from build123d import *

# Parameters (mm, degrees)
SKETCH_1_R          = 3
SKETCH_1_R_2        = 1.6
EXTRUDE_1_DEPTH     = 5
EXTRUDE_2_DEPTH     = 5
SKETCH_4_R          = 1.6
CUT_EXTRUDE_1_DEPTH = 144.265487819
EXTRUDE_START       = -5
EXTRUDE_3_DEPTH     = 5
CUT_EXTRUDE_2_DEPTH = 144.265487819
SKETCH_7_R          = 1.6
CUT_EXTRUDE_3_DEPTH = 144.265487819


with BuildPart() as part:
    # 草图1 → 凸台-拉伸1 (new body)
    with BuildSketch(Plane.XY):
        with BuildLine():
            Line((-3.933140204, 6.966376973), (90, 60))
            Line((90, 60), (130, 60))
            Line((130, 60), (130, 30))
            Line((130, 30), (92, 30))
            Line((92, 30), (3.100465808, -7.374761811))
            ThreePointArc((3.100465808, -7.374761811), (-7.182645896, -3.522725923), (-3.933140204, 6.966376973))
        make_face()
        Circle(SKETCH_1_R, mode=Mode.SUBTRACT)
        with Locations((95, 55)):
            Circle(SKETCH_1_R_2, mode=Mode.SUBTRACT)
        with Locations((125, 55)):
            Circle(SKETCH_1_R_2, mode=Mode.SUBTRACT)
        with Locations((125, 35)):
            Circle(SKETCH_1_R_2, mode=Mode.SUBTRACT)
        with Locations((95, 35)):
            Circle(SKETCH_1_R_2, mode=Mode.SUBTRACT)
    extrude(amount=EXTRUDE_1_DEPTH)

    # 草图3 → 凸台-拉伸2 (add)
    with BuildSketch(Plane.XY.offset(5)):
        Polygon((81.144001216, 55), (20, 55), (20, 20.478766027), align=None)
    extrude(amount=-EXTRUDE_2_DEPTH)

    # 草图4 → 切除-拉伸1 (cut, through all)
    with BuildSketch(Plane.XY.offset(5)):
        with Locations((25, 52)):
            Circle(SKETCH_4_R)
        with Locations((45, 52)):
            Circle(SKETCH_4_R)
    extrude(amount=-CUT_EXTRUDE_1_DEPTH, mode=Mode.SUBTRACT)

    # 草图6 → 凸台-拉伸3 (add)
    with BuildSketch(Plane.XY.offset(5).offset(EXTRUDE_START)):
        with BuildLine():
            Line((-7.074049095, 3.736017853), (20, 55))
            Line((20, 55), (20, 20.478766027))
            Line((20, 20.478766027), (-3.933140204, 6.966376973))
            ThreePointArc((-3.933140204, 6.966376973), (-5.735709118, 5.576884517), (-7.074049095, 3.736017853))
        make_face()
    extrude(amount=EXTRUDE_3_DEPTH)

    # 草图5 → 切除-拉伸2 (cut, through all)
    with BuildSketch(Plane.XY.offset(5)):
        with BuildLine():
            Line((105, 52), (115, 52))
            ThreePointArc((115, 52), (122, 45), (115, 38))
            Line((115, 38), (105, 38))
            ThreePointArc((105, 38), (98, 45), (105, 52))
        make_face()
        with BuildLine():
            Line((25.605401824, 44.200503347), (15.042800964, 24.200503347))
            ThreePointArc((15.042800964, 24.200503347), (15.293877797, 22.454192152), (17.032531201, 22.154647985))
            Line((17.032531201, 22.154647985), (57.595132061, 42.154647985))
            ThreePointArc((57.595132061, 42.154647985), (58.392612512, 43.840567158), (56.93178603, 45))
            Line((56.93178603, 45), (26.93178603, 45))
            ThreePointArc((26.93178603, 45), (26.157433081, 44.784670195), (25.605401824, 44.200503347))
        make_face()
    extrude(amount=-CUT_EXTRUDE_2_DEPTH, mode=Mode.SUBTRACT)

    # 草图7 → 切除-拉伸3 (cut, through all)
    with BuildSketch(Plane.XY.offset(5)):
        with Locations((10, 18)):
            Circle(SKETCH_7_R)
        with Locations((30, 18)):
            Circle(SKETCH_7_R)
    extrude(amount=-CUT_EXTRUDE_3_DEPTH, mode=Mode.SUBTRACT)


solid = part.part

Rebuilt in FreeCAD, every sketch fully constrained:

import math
import FreeCAD as App
import Part
import Sketcher


def add_polygon(sketch, points):
    """Adds a closed chain of lines whose ends are joined by coincident constraints."""
    first, n = sketch.GeometryCount, len(points)
    for a, b in zip(points, points[1:] + points[:1]):
        sketch.addGeometry(Part.LineSegment(App.Vector(*a, 0), App.Vector(*b, 0)), False)
    for i in range(n):
        sketch.addConstraint(Sketcher.Constraint("Coincident", first + i, 2, first + (i + 1) % n, 1))

doc = App.newDocument("Part")
body = doc.addObject("PartDesign::Body", "Body")

# Sketch on XY plane
sketch1 = body.newObject("Sketcher::SketchObject", "Sketch")
sketch1.AttachmentSupport = (doc.getObject("XY_Plane"), [""])
sketch1.MapMode = "FlatFace"
sketch1.addGeometry([
    Part.LineSegment(App.Vector(90, 60, 0), App.Vector(-3.93314, 6.966377, 0)),  # 0
    Part.ArcOfCircle(Part.Circle(App.Vector(0, 0, 0), App.Vector(0, 0, 1), 8), math.radians(119.448597), math.radians(292.80265)),  # 1
    Part.LineSegment(App.Vector(3.100466, -7.374762, 0), App.Vector(92, 30, 0)),  # 2
    Part.LineSegment(App.Vector(92, 30, 0), App.Vector(130, 30, 0)),  # 3
    Part.LineSegment(App.Vector(130, 30, 0), App.Vector(130, 60, 0)),  # 4
    Part.LineSegment(App.Vector(130, 60, 0), App.Vector(90, 60, 0)),  # 5
    Part.Circle(App.Vector(0, 0, 0), App.Vector(0, 0, 1), 3),  # 6
    Part.Circle(App.Vector(125, 35, 0), App.Vector(0, 0, 1), 1.6),  # 7
    Part.Circle(App.Vector(95, 35, 0), App.Vector(0, 0, 1), 1.6),  # 8
    Part.Circle(App.Vector(125, 55, 0), App.Vector(0, 0, 1), 1.6),  # 9
    Part.Circle(App.Vector(95, 55, 0), App.Vector(0, 0, 1), 1.6),  # 10
], False)
sketch1.addConstraint([
    Sketcher.Constraint("Tangent", 0, 2, 1, 1),
    Sketcher.Constraint("Tangent", 1, 2, 2, 1),
    Sketcher.Constraint("Coincident", 2, 2, 3, 1),
    Sketcher.Constraint("Coincident", 3, 2, 4, 1),
    Sketcher.Constraint("Coincident", 4, 2, 5, 1),
    Sketcher.Constraint("Coincident", 5, 2, 0, 1),
    Sketcher.Constraint("Horizontal", 3),
    Sketcher.Constraint("Vertical", 4),
    Sketcher.Constraint("Horizontal", 5),
    Sketcher.Constraint("Coincident", 1, 3, -1, 1),
    Sketcher.Constraint("Coincident", 6, 3, -1, 1),
    Sketcher.Constraint("Equal", 7, 8),
    Sketcher.Constraint("Equal", 8, 9),
    Sketcher.Constraint("Equal", 9, 10),
    Sketcher.Constraint("Horizontal", 7, 3, 8, 3),
    Sketcher.Constraint("Horizontal", 9, 3, 10, 3),
    Sketcher.Constraint("Vertical", 7, 3, 9, 3),
    Sketcher.Constraint("Vertical", 8, 3, 10, 3),
    Sketcher.Constraint("Diameter", 6, 6.0),
    Sketcher.Constraint("Radius", 1, 8.0),
    Sketcher.Constraint("Diameter", 7, 3.2),
    Sketcher.Constraint("DistanceX", 3, 1, 3, 2, 38.0),
    Sketcher.Constraint("DistanceX", 5, 2, 5, 1, 40.0),
    Sketcher.Constraint("DistanceY", 4, 1, 4, 2, 30.0),
    Sketcher.Constraint("DistanceX", -1, 1, 7, 3, 125.0),
    Sketcher.Constraint("DistanceY", -1, 1, 7, 3, 35.0),
    Sketcher.Constraint("DistanceX", -1, 1, 8, 3, 95.0),
    Sketcher.Constraint("DistanceY", -1, 1, 9, 3, 55.0),
    Sketcher.Constraint("DistanceX", -1, 1, 2, 2, 92.0),
    Sketcher.Constraint("DistanceY", -1, 1, 2, 2, 30.0),
])
pad1 = body.newObject("PartDesign::Pad", "Pad")
pad1.Profile = sketch1
pad1.Length = 5

# Sketch on XY plane
sketch2 = body.newObject("Sketcher::SketchObject", "Sketch001")
sketch2.AttachmentSupport = (doc.getObject("XY_Plane"), [""])
sketch2.MapMode = "FlatFace"
sketch2.AttachmentOffset = App.Placement(App.Vector(0, 0, 5), App.Rotation())
add_polygon(sketch2, [(81.144001, 55), (20, 55), (20, 20.478766)])  # lines 0-2
sketch2.addConstraint([
    Sketcher.Constraint("Horizontal", 0),
    Sketcher.Constraint("Vertical", 1),
    Sketcher.Constraint("DistanceX", -1, 1, 0, 2, 20.0),
    Sketcher.Constraint("DistanceY", -1, 1, 0, 2, 55.0),
    Sketcher.Constraint("DistanceX", 0, 2, 0, 1, 61.144001),
    Sketcher.Constraint("DistanceY", 1, 2, 1, 1, 34.521234),
])
pad2 = body.newObject("PartDesign::Pad", "Pad001")
pad2.Profile = sketch2
pad2.Length = 5
pad2.Reversed = True

# Sketch on XY plane
sketch3 = body.newObject("Sketcher::SketchObject", "Sketch002")
sketch3.AttachmentSupport = (doc.getObject("XY_Plane"), [""])
sketch3.MapMode = "FlatFace"
sketch3.AttachmentOffset = App.Placement(App.Vector(0, 0, 5), App.Rotation())
sketch3.addGeometry([
    Part.Circle(App.Vector(25, 52, 0), App.Vector(0, 0, 1), 1.6),
    Part.Circle(App.Vector(45, 52, 0), App.Vector(0, 0, 1), 1.6),
], False)
sketch3.addConstraint([
    Sketcher.Constraint("Equal", 0, 1),
    Sketcher.Constraint("Horizontal", 0, 3, 1, 3),
    Sketcher.Constraint("Diameter", 0, 3.2),
    Sketcher.Constraint("DistanceX", -1, 1, 0, 3, 25.0),
    Sketcher.Constraint("DistanceY", -1, 1, 0, 3, 52.0),
    Sketcher.Constraint("DistanceX", -1, 1, 1, 3, 45.0),
])
pocket1 = body.newObject("PartDesign::Pocket", "Pocket")
pocket1.Profile = sketch3
pocket1.Type = "ThroughAll"

# Sketch on XY plane
sketch4 = body.newObject("Sketcher::SketchObject", "Sketch003")
sketch4.AttachmentSupport = (doc.getObject("XY_Plane"), [""])
sketch4.MapMode = "FlatFace"
sketch4.addGeometry([
    Part.LineSegment(App.Vector(20, 55, 0), App.Vector(-7.074049, 3.736018, 0)),
    Part.ArcOfCircle(Part.Circle(App.Vector(0, 0, 0), App.Vector(0, 0, 1), 8), math.radians(119.448597), math.radians(152.16012)),
    Part.LineSegment(App.Vector(-3.93314, 6.966377, 0), App.Vector(20, 20.478766, 0)),
    Part.LineSegment(App.Vector(20, 20.478766, 0), App.Vector(20, 55, 0)),
], False)
sketch4.addConstraint([
    Sketcher.Constraint("Tangent", 0, 2, 1, 2),
    Sketcher.Constraint("Tangent", 1, 1, 2, 1),
    Sketcher.Constraint("Coincident", 2, 2, 3, 1),
    Sketcher.Constraint("Coincident", 3, 2, 0, 1),
    Sketcher.Constraint("Vertical", 3),
    Sketcher.Constraint("Coincident", 1, 3, -1, 1),
    Sketcher.Constraint("Radius", 1, 8.0),
    Sketcher.Constraint("DistanceX", -1, 1, 2, 2, 20.0),
    Sketcher.Constraint("DistanceY", -1, 1, 3, 2, 55.0),
    Sketcher.Constraint("DistanceY", 3, 1, 3, 2, 34.521234),
])
pad3 = body.newObject("PartDesign::Pad", "Pad002")
pad3.Profile = sketch4
pad3.Length = 5

# Sketch on XY plane
sketch5 = body.newObject("Sketcher::SketchObject", "Sketch004")
sketch5.AttachmentSupport = (doc.getObject("XY_Plane"), [""])
sketch5.MapMode = "FlatFace"
sketch5.AttachmentOffset = App.Placement(App.Vector(0, 0, 5), App.Rotation())
sketch5.addGeometry([
    Part.LineSegment(App.Vector(115, 52, 0), App.Vector(105, 52, 0)),  # 0
    Part.ArcOfCircle(Part.Circle(App.Vector(105, 45, 0), App.Vector(0, 0, 1), 7), math.radians(90), math.radians(270)),  # 1
    Part.LineSegment(App.Vector(105, 38, 0), App.Vector(115, 38, 0)),  # 2
    Part.ArcOfCircle(Part.Circle(App.Vector(115, 45, 0), App.Vector(0, 0, 1), 7), math.radians(-90), math.radians(90)),  # 3
    Part.LineSegment(App.Vector(25.605402, 44.200503, 0), App.Vector(15.042801, 24.200503, 0)),  # 4
    Part.ArcOfCircle(Part.Circle(App.Vector(16.369185, 23.5, 0), App.Vector(0, 0, 1), 1.5), math.radians(152.16012), math.radians(296.246295)),  # 5
    Part.LineSegment(App.Vector(17.032531, 22.154648, 0), App.Vector(57.595132, 42.154648, 0)),  # 6
    Part.ArcOfCircle(Part.Circle(App.Vector(56.931786, 43.5, 0), App.Vector(0, 0, 1), 1.5), math.radians(-63.753705), math.radians(90)),  # 7
    Part.LineSegment(App.Vector(56.931786, 45, 0), App.Vector(26.931786, 45, 0)),  # 8
    Part.ArcOfCircle(Part.Circle(App.Vector(26.931786, 43.5, 0), App.Vector(0, 0, 1), 1.5), math.radians(90), math.radians(152.16012)),  # 9
], False)
sketch5.addConstraint([
    Sketcher.Constraint("Tangent", 0, 2, 1, 1),
    Sketcher.Constraint("Tangent", 1, 2, 2, 1),
    Sketcher.Constraint("Tangent", 2, 2, 3, 1),
    Sketcher.Constraint("Tangent", 3, 2, 0, 1),
    Sketcher.Constraint("Tangent", 4, 2, 5, 1),
    Sketcher.Constraint("Tangent", 5, 2, 6, 1),
    Sketcher.Constraint("Tangent", 6, 2, 7, 1),
    Sketcher.Constraint("Tangent", 7, 2, 8, 1),
    Sketcher.Constraint("Tangent", 8, 2, 9, 1),
    Sketcher.Constraint("Tangent", 9, 2, 4, 1),
    Sketcher.Constraint("Horizontal", 0),
    Sketcher.Constraint("Horizontal", 2),
    Sketcher.Constraint("Horizontal", 8),
    Sketcher.Constraint("Equal", 5, 7),
    Sketcher.Constraint("Equal", 7, 9),
    Sketcher.Constraint("Horizontal", 3, 3, 7, 2),
    Sketcher.Constraint("Radius", 1, 7.0),
    Sketcher.Constraint("Radius", 5, 1.5),
    Sketcher.Constraint("DistanceX", 0, 2, 0, 1, 10.0),
    Sketcher.Constraint("DistanceX", 8, 2, 8, 1, 30.0),
    Sketcher.Constraint("DistanceX", -1, 1, 1, 3, 105.0),
    Sketcher.Constraint("DistanceY", -1, 1, 1, 3, 45.0),
    Sketcher.Constraint("DistanceY", 5, 3, 7, 3, 20.0),
    Sketcher.Constraint("DistanceX", -1, 1, 4, 2, 15.042801),
    Sketcher.Constraint("DistanceX", -1, 1, 9, 2, 25.605402),
])
pocket2 = body.newObject("PartDesign::Pocket", "Pocket001")
pocket2.Profile = sketch5
pocket2.Type = "ThroughAll"

# Sketch on XY plane
sketch6 = body.newObject("Sketcher::SketchObject", "Sketch005")
sketch6.AttachmentSupport = (doc.getObject("XY_Plane"), [""])
sketch6.MapMode = "FlatFace"
sketch6.AttachmentOffset = App.Placement(App.Vector(0, 0, 5), App.Rotation())
sketch6.addGeometry([
    Part.Circle(App.Vector(10, 18, 0), App.Vector(0, 0, 1), 1.6),
    Part.Circle(App.Vector(30, 18, 0), App.Vector(0, 0, 1), 1.6),
], False)
sketch6.addConstraint([
    Sketcher.Constraint("Equal", 0, 1),
    Sketcher.Constraint("Horizontal", 0, 3, 1, 3),
    Sketcher.Constraint("Diameter", 0, 3.2),
    Sketcher.Constraint("DistanceX", -1, 1, 0, 3, 10.0),
    Sketcher.Constraint("DistanceY", -1, 1, 0, 3, 18.0),
    Sketcher.Constraint("DistanceX", -1, 1, 1, 3, 30.0),
])
pocket3 = body.newObject("PartDesign::Pocket", "Pocket002")
pocket3.Profile = sketch6
pocket3.Type = "ThroughAll"

doc.recompute()
